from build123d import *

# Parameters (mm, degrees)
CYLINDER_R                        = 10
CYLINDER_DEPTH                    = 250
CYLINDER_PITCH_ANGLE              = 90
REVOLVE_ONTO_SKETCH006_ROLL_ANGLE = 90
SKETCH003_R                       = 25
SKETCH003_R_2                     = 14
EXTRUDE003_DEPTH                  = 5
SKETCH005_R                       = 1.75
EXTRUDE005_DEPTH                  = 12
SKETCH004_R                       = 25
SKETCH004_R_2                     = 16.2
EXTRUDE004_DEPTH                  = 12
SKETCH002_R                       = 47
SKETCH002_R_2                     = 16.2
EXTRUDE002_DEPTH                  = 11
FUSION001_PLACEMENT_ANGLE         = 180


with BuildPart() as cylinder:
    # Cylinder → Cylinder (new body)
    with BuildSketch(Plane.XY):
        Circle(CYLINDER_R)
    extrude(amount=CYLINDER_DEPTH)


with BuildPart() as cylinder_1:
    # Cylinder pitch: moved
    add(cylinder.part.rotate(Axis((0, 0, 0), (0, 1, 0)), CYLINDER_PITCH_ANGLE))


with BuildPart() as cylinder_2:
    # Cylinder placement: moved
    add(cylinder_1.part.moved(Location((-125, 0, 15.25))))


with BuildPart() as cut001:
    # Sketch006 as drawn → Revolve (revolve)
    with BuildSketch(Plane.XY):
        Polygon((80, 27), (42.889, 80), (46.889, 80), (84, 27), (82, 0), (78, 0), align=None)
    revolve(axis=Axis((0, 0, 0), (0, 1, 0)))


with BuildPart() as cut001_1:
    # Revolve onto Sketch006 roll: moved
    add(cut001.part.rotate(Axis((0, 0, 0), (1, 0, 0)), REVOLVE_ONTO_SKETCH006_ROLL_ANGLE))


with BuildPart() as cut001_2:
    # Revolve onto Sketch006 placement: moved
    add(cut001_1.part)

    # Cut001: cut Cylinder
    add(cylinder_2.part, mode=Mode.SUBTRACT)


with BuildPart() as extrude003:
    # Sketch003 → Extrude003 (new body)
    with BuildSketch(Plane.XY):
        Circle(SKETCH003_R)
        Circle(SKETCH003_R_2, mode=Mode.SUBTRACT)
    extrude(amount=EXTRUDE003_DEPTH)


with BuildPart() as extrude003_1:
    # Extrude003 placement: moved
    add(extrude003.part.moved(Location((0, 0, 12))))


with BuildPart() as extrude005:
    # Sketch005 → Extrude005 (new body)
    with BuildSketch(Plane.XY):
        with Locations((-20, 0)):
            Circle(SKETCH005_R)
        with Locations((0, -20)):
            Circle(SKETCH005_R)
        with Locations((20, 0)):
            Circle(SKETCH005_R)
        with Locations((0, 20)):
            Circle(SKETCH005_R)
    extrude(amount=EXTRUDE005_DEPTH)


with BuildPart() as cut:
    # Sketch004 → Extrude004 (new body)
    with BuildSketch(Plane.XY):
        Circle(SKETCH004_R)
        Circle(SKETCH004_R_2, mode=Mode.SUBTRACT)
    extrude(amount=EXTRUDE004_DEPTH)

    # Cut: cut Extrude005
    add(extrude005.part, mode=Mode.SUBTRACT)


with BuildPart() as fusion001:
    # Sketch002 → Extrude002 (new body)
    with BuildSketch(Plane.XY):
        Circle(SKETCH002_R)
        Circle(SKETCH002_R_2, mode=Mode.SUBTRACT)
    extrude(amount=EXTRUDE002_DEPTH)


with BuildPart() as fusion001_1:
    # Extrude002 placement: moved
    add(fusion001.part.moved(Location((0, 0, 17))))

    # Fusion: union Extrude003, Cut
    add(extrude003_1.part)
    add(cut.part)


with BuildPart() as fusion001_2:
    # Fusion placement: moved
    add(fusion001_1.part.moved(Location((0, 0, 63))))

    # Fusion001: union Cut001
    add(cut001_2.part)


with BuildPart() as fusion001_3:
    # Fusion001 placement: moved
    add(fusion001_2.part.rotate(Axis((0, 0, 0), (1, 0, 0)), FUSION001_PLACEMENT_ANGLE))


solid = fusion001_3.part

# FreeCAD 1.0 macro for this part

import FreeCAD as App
import Part
import Sketcher

V = App.Vector
Q = App.Units.Quantity


def add_polygon(sketch, points):
    """Adds a closed chain of lines whose ends are joined by coincident constraints."""
    first, n = sketch.GeometryCount, len(points)
    for a, b in zip(points, points[1:] + points[:1]):
        sketch.addGeometry(Part.LineSegment(App.Vector(*a, 0), App.Vector(*b, 0)), False)
    for i in range(n):
        sketch.addConstraint(Sketcher.Constraint("Coincident", first + i, 2, first + (i + 1) % n, 1))

doc = App.newDocument("Part")
body = doc.addObject("PartDesign::Body", "Body")

sketch1 = doc.addObject("Sketcher::SketchObject", "Sketch")
body.addObject(sketch1)
sketch1.AttachmentSupport = (doc.XY_Plane, [""])
sketch1.MapMode = "FlatFace"
sketch1.addGeometry(Part.Circle(V(0, 0, 0), V(0, 0, 1), 10), False)
sketch1.addConstraint([
    Sketcher.Constraint("Coincident", 0, 3, -1, 1),
    Sketcher.Constraint("Diameter", 0, Q("20 mm")),
])
pad1 = doc.addObject("PartDesign::Pad", "Pad")
body.addObject(pad1)
pad1.Profile = sketch1
pad1.Length = 250
body2 = doc.addObject("PartDesign::Body", "Body001")
doc.recompute()

body.Placement = App.Placement(V(0, 0, 0), App.Rotation(V(0, 1, 0), 90))
boolean = doc.addObject("PartDesign::Boolean", "Boolean")
body2.addObject(boolean)
boolean.Type = "Fuse"
boolean.addObjects([body])
body3 = doc.addObject("PartDesign::Body", "Body002")
doc.recompute()

body2.Placement = App.Placement(V(-125, 0, 15.25), App.Rotation(V(0, 0, 1), 0))
boolean2 = doc.addObject("PartDesign::Boolean", "Boolean001")
body3.addObject(boolean2)
boolean2.Type = "Fuse"
boolean2.addObjects([body2])
body4 = doc.addObject("PartDesign::Body", "Body003")

sketch2 = doc.addObject("Sketcher::SketchObject", "Sketch001")
body4.addObject(sketch2)
sketch2.AttachmentSupport = (doc.getObject("XY_Plane003"), [""])
sketch2.MapMode = "FlatFace"
add_polygon(sketch2, [(42.9, 80), (80, 27), (78, 0), (82, 0), (84, 27), (46.9, 80)])
sketch2.addConstraint([
    Sketcher.Constraint("Horizontal", 2),
    Sketcher.Constraint("Horizontal", 5),
    Sketcher.Constraint("PointOnObject", 1, 2, -1),
    Sketcher.Constraint("Parallel", 1, 3),
    Sketcher.Constraint("Parallel", 0, 4),
    Sketcher.Constraint("Horizontal", 0, 2, 3, 2),
    Sketcher.Constraint("DistanceX", 2, 1, 2, 2, Q("4 mm")),
    Sketcher.Constraint("Angle", 0, Q("-55 deg")),
    Sketcher.Constraint("DistanceX", -1, 1, 0, 2, Q("80 mm")),
    Sketcher.Constraint("DistanceY", -1, 1, 0, 2, Q("27 mm")),
    Sketcher.Constraint("DistanceX", -1, 1, 1, 2, Q("78 mm")),
    Sketcher.Constraint("DistanceY", -1, 1, 4, 2, Q("80 mm")),
])
revolution = doc.addObject("PartDesign::Revolution", "Revolution")
body4.addObject(revolution)
revolution.Profile = sketch2
revolution.ReferenceAxis = (sketch2, ["V_Axis"])
revolution.Angle = 360
body5 = doc.addObject("PartDesign::Body", "Body004")
doc.recompute()

body4.Placement = App.Placement(V(0, 0, 0), App.Rotation(V(1, 0, 0), 90))
boolean3 = doc.addObject("PartDesign::Boolean", "Boolean002")
body5.addObject(boolean3)
boolean3.Type = "Fuse"
boolean3.addObjects([body4])
doc.recompute()

boolean4 = doc.addObject("PartDesign::Boolean", "Boolean003")
body5.addObject(boolean4)
boolean4.Type = "Cut"
boolean4.addObjects([body3])
body6 = doc.addObject("PartDesign::Body", "Body005")

sketch3 = doc.addObject("Sketcher::SketchObject", "Sketch002")
body6.addObject(sketch3)
sketch3.AttachmentSupport = (doc.getObject("XY_Plane005"), [""])
sketch3.MapMode = "FlatFace"
sketch3.addGeometry([
    Part.Circle(V(0, 0, 0), V(0, 0, 1), 25),
    Part.Circle(V(0, 0, 0), V(0, 0, 1), 14),
], False)
sketch3.addConstraint([
    Sketcher.Constraint("Coincident", 0, 3, -1, 1),
    Sketcher.Constraint("Coincident", 1, 3, -1, 1),
    Sketcher.Constraint("Diameter", 0, Q("50 mm")),
    Sketcher.Constraint("Diameter", 1, Q("28 mm")),
])
pad2 = doc.addObject("PartDesign::Pad", "Pad001")
body6.addObject(pad2)
pad2.Profile = sketch3
pad2.Length = 5
body7 = doc.addObject("PartDesign::Body", "Body006")
doc.recompute()

body6.Placement = App.Placement(V(0, 0, 12), App.Rotation(V(0, 0, 1), 0))
boolean5 = doc.addObject("PartDesign::Boolean", "Boolean004")
body7.addObject(boolean5)
boolean5.Type = "Fuse"
boolean5.addObjects([body6])
body8 = doc.addObject("PartDesign::Body", "Body007")
body8.AllowCompound = True

sketch4 = doc.addObject("Sketcher::SketchObject", "Sketch003")
body8.addObject(sketch4)
sketch4.AttachmentSupport = (doc.getObject("XY_Plane007"), [""])
sketch4.MapMode = "FlatFace"
sketch4.addGeometry([
    Part.Circle(V(-20, 0, 0), V(0, 0, 1), 1.8),
    Part.Circle(V(0, -20, 0), V(0, 0, 1), 1.8),
    Part.Circle(V(20, 0, 0), V(0, 0, 1), 1.8),
    Part.Circle(V(0, 20, 0), V(0, 0, 1), 1.8),
], False)
sketch4.addConstraint([
    Sketcher.Constraint("Equal", 0, 1),
    Sketcher.Constraint("Equal", 1, 2),
    Sketcher.Constraint("Equal", 2, 3),
    Sketcher.Constraint("Symmetric", 0, 3, 2, 3, -1, 1),
    Sketcher.Constraint("Symmetric", 1, 3, 3, 3, -1, 1),
    Sketcher.Constraint("PointOnObject", 0, 3, -1),
    Sketcher.Constraint("PointOnObject", 1, 3, -2),
    Sketcher.Constraint("Diameter", 0, Q("3.5 mm")),
    Sketcher.Constraint("DistanceX", 0, 3, -1, 1, Q("20 mm")),
    Sketcher.Constraint("DistanceY", 1, 3, -1, 1, Q("20 mm")),
])
pad3 = doc.addObject("PartDesign::Pad", "Pad002")
body8.addObject(pad3)
pad3.Profile = sketch4
pad3.Length = 12
body9 = doc.addObject("PartDesign::Body", "Body008")

sketch5 = doc.addObject("Sketcher::SketchObject", "Sketch004")
body9.addObject(sketch5)
sketch5.AttachmentSupport = (doc.getObject("XY_Plane008"), [""])
sketch5.MapMode = "FlatFace"
sketch5.addGeometry([
    Part.Circle(V(0, 0, 0), V(0, 0, 1), 25),
    Part.Circle(V(0, 0, 0), V(0, 0, 1), 16),
], False)
sketch5.addConstraint([
    Sketcher.Constraint("Coincident", 0, 3, -1, 1),
    Sketcher.Constraint("Coincident", 1, 3, -1, 1),
    Sketcher.Constraint("Diameter", 0, Q("50 mm")),
    Sketcher.Constraint("Diameter", 1, Q("32.4 mm")),
])
pad4 = doc.addObject("PartDesign::Pad", "Pad003")
body9.addObject(pad4)
pad4.Profile = sketch5
pad4.Length = 12
doc.recompute()

boolean6 = doc.addObject("PartDesign::Boolean", "Boolean005")
body9.addObject(boolean6)
boolean6.Type = "Cut"
boolean6.addObjects([body8])
body10 = doc.addObject("PartDesign::Body", "Body009")

sketch6 = doc.addObject("Sketcher::SketchObject", "Sketch005")
body10.addObject(sketch6)
sketch6.AttachmentSupport = (doc.getObject("XY_Plane009"), [""])
sketch6.MapMode = "FlatFace"
sketch6.addGeometry([
    Part.Circle(V(0, 0, 0), V(0, 0, 1), 47),
    Part.Circle(V(0, 0, 0), V(0, 0, 1), 16),
], False)
sketch6.addConstraint([
    Sketcher.Constraint("Coincident", 0, 3, -1, 1),
    Sketcher.Constraint("Coincident", 1, 3, -1, 1),
    Sketcher.Constraint("Diameter", 0, Q("94 mm")),
    Sketcher.Constraint("Diameter", 1, Q("32.4 mm")),
])
pad5 = doc.addObject("PartDesign::Pad", "Pad004")
body10.addObject(pad5)
pad5.Profile = sketch6
pad5.Length = 11
body11 = doc.addObject("PartDesign::Body", "Body010")
doc.recompute()

body10.Placement = App.Placement(V(0, 0, 17), App.Rotation(V(0, 0, 1), 0))
boolean7 = doc.addObject("PartDesign::Boolean", "Boolean006")
body11.addObject(boolean7)
boolean7.Type = "Fuse"
boolean7.addObjects([body10])
doc.recompute()

boolean8 = doc.addObject("PartDesign::Boolean", "Boolean007")
body11.addObject(boolean8)
boolean8.Type = "Fuse"
boolean8.addObjects([body7])
doc.recompute()

boolean9 = doc.addObject("PartDesign::Boolean", "Boolean008")
body11.addObject(boolean9)
boolean9.Type = "Fuse"
boolean9.addObjects([body9])
body12 = doc.addObject("PartDesign::Body", "Body011")
doc.recompute()

body11.Placement = App.Placement(V(0, 0, 63), App.Rotation(V(0, 0, 1), 0))
boolean10 = doc.addObject("PartDesign::Boolean", "Boolean009")
body12.addObject(boolean10)
boolean10.Type = "Fuse"
boolean10.addObjects([body11])
doc.recompute()

boolean11 = doc.addObject("PartDesign::Boolean", "Boolean010")
body12.addObject(boolean11)
boolean11.Type = "Fuse"
boolean11.addObjects([body5])
body13 = doc.addObject("PartDesign::Body", "Body012")
doc.recompute()

body12.Placement = App.Placement(V(0, 0, 0), App.Rotation(V(1, 0, 0), 180))
boolean12 = doc.addObject("PartDesign::Boolean", "Boolean011")
body13.addObject(boolean12)
boolean12.Type = "Fuse"
boolean12.addObjects([body12])

doc.recompute()
